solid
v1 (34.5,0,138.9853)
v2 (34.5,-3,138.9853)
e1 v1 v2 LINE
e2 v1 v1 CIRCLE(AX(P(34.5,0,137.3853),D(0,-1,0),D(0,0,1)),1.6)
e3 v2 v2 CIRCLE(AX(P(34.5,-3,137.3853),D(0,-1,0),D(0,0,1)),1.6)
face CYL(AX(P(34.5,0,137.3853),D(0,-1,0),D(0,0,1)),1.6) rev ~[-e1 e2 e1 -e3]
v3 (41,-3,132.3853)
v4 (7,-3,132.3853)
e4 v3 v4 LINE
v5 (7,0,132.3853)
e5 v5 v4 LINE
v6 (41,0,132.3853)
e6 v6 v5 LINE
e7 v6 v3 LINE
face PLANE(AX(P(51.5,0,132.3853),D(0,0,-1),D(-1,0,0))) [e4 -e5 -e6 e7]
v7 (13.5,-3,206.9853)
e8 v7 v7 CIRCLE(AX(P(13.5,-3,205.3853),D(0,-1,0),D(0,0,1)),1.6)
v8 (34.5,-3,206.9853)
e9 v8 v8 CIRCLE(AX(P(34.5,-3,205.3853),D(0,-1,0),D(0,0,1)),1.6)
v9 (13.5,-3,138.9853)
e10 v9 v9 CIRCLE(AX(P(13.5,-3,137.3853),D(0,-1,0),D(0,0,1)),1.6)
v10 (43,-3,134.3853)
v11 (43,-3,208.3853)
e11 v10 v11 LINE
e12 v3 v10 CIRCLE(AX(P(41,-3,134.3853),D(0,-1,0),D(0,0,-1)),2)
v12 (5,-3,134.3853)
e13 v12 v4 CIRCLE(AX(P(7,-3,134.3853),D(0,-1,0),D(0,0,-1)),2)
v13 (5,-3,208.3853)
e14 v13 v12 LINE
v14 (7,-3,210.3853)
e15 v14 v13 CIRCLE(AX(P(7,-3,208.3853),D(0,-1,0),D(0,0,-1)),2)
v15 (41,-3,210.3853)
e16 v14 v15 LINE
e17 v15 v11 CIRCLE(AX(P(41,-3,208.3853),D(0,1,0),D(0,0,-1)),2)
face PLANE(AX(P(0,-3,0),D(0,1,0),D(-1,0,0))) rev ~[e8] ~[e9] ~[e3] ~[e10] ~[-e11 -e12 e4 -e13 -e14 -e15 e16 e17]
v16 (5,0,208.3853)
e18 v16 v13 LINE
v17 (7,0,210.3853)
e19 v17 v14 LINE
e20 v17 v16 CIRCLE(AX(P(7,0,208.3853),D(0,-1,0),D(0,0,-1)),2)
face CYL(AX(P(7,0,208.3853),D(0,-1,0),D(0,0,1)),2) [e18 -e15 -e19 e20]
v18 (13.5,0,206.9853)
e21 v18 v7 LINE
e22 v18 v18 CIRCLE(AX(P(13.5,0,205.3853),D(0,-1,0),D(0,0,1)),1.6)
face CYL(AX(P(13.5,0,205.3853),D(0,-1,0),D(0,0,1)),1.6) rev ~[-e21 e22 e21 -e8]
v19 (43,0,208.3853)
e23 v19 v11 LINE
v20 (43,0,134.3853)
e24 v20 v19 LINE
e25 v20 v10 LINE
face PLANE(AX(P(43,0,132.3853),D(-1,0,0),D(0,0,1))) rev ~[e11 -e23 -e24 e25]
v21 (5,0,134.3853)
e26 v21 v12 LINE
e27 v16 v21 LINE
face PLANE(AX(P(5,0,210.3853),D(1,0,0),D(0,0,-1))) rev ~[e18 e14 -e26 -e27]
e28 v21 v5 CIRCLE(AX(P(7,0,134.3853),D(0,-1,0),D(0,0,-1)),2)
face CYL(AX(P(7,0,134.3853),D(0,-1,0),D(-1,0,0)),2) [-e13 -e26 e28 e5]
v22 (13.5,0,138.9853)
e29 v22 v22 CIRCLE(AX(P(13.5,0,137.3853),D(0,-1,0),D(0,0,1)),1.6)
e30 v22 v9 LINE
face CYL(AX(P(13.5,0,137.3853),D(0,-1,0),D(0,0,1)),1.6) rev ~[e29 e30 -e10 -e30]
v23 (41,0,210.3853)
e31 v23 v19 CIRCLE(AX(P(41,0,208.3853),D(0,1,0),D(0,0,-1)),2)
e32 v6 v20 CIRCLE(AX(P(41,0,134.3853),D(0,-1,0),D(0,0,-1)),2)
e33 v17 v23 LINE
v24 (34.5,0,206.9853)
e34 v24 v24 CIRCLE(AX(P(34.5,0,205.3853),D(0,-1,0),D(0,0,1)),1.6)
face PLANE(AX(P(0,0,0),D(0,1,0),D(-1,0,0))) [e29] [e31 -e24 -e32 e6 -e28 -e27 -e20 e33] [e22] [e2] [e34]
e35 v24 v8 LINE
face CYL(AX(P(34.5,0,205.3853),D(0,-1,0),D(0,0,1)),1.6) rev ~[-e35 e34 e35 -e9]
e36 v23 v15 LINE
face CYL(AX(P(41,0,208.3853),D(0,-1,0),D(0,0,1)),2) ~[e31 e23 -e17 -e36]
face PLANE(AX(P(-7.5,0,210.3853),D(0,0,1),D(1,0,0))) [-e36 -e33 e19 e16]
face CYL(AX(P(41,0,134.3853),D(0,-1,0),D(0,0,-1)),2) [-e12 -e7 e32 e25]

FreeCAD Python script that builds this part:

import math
import FreeCAD as App
import Part
import Sketcher
from FreeCAD import Vector
Q = App.Units.Quantity


def edges_at(feature, points):
    """Names of the edges that pass closest to the given points."""
    edges = feature.Shape.Edges
    near = lambda p: min(range(len(edges)), key=lambda i: edges[i].distToShape(Part.Vertex(*p))[0])
    return sorted({f"Edge{near(p) + 1}" for p in points})


def add_polygon(sketch, points):
    """Adds a closed chain of lines whose ends are joined by coincident constraints."""
    first, n = sketch.GeometryCount, len(points)
    for a, b in zip(points, points[1:] + points[:1]):
        sketch.addGeometry(Part.LineSegment(App.Vector(*a, 0), App.Vector(*b, 0)), False)
    for i in range(n):
        sketch.addConstraint(Sketcher.Constraint("Coincident", first + i, 2, first + (i + 1) % n, 1))

doc = App.newDocument("Part")
params = doc.addObject("Spreadsheet::Sheet", "Params")
for row, (alias, value) in enumerate([
    ("sketch1_width", "59 mm"),
    ("sketch1_height", "78 mm"),
    ("pad1_length", "3 mm"),
    ("sketch2_diameter", "3.2 mm"),
    ("hole_diameter", "3.2 mm"),
    ("fillet_radius", "2 mm"),
    ("sketch3_width", "10.5 mm"),
    ("sketch3_radius", "2 mm"),
    ("sketch3_diameter", "3.2 mm"),
    ("sketch3_height", "78 mm"),
    ("sketch3_width2", "6.5 mm"),
    ("fillet2_radius", "2 mm"),
], start=1):
    params.set(f"A{row}", alias)
    params.set(f"B{row}", "=" + value)
    params.setAlias(f"B{row}", alias)

body = doc.addObject("PartDesign::Body", "Body")

sketch1 = body.newObject("Sketcher::SketchObject", "Sketch")
sketch1.AttachmentSupport = (doc.getObject("XZ_Plane"), [""])
sketch1.MapMode = "FlatFace"
add_polygon(sketch1, [(52, 210), (52, 132), (-8, 132), (-8, 210)])
sketch1.addConstraint(Sketcher.Constraint("Vertical", 0))
sketch1.addConstraint(Sketcher.Constraint("Horizontal", 1))
sketch1.addConstraint(Sketcher.Constraint("Vertical", 2))
sketch1.addConstraint(Sketcher.Constraint("Horizontal", 3))
sketch1.addConstraint(Sketcher.Constraint("DistanceX", 1, 2, 1, 1, Q("59 mm")))
sketch1.addConstraint(Sketcher.Constraint("DistanceY", 0, 2, 0, 1, Q("78 mm")))
sketch1.addConstraint(Sketcher.Constraint("DistanceX", -1, 1, 0, 2, Q("51.5 mm")))
sketch1.addConstraint(Sketcher.Constraint("DistanceY", -1, 1, 0, 2, Q("132.3853 mm")))
sketch1.setExpression("Constraints[8]", "Params.sketch1_width")
sketch1.setExpression("Constraints[9]", "Params.sketch1_height")
pad1 = body.newObject("PartDesign::Pad", "Pad")
pad1.Profile = sketch1
pad1.setExpression("Length", "Params.pad1_length")

sketch2 = body.newObject("Sketcher::SketchObject", "Sketch001")
sketch2.AttachmentSupport = (doc.getObject("XZ_Plane"), [""])
sketch2.MapMode = "FlatFace"
sketch2.addGeometry(Part.Circle(Vector(34.5, 137.4, 0), Vector(0, 0, 1), 1.6), False)
sketch2.addGeometry(Part.Circle(Vector(13.5, 137.4, 0), Vector(0, 0, 1), 1.6), False)
sketch2.addGeometry(Part.Circle(Vector(46.5, 159.4, 0), Vector(0, 0, 1), 1.6), False)
sketch2.addGeometry(Part.Circle(Vector(46.5, 183.4, 0), Vector(0, 0, 1), 1.6), False)
sketch2.addGeometry(Part.Circle(Vector(34.5, 205.4, 0), Vector(0, 0, 1), 1.6), False)
sketch2.addGeometry(Part.Circle(Vector(-2.5, 159.4, 0), Vector(0, 0, 1), 1.6), False)
sketch2.addGeometry(Part.Circle(Vector(-2.5, 183.4, 0), Vector(0, 0, 1), 1.6), False)
sketch2.addGeometry(Part.Circle(Vector(13.5, 205.4, 0), Vector(0, 0, 1), 1.6), False)
sketch2.addConstraint(Sketcher.Constraint("Equal", 0, 1))
sketch2.addConstraint(Sketcher.Constraint("Equal", 1, 2))
sketch2.addConstraint(Sketcher.Constraint("Equal", 2, 3))
sketch2.addConstraint(Sketcher.Constraint("Equal", 3, 4))
sketch2.addConstraint(Sketcher.Constraint("Equal", 4, 5))
sketch2.addConstraint(Sketcher.Constraint("Equal", 5, 6))
sketch2.addConstraint(Sketcher.Constraint("Equal", 6, 7))
sketch2.addConstraint(Sketcher.Constraint("Horizontal", 0, 3, 1, 3))
sketch2.addConstraint(Sketcher.Constraint("Horizontal", 2, 3, 5, 3))
sketch2.addConstraint(Sketcher.Constraint("Horizontal", 3, 3, 6, 3))
sketch2.addConstraint(Sketcher.Constraint("Horizontal", 4, 3, 7, 3))
sketch2.addConstraint(Sketcher.Constraint("Vertical", 2, 3, 3, 3))
sketch2.addConstraint(Sketcher.Constraint("Vertical", 0, 3, 4, 3))
sketch2.addConstraint(Sketcher.Constraint("Vertical", 5, 3, 6, 3))
sketch2.addConstraint(Sketcher.Constraint("Vertical", 1, 3, 7, 3))
sketch2.addConstraint(Sketcher.Constraint("Diameter", 0, Q("3.2 mm")))
sketch2.addConstraint(Sketcher.Constraint("DistanceX", 1, 3, 0, 3, Q("21 mm")))
sketch2.addConstraint(Sketcher.Constraint("DistanceX", 0, 3, 2, 3, Q("12 mm")))
sketch2.addConstraint(Sketcher.Constraint("DistanceY", 0, 3, 2, 3, Q("22 mm")))
sketch2.addConstraint(Sketcher.Constraint("DistanceY", 2, 3, 3, 3, Q("24 mm")))
sketch2.addConstraint(Sketcher.Constraint("DistanceY", 3, 3, 4, 3, Q("22 mm")))
sketch2.addConstraint(Sketcher.Constraint("DistanceX", 5, 3, 1, 3, Q("16 mm")))
sketch2.addConstraint(Sketcher.Constraint("DistanceX", -1, 1, 0, 3, Q("34.5 mm")))
sketch2.addConstraint(Sketcher.Constraint("DistanceY", -1, 1, 0, 3, Q("137.3853 mm")))
sketch2.setExpression("Constraints[15]", "Params.sketch2_diameter")
doc.recompute()
hole = body.newObject("PartDesign::Hole", "Hole")
hole.Profile = sketch2
hole.ThreadType = "None"
hole.setExpression("Diameter", "Params.hole_diameter")
hole.DepthType = "ThroughAll"
hole.Reversed = True
doc.recompute()

fillet = body.newObject("PartDesign::Fillet", "Fillet")
fillet.Base = (hole, edges_at(hole, [
    (-7.5, -1.5, 210.385),
    (51.5, -1.5, 210.385),
    (51.5, -1.5, 132.385),
    (-7.5, -1.5, 132.385),
]))
fillet.setExpression("Radius", "Params.fillet_radius")

sketch3 = body.newObject("Sketcher::SketchObject", "Sketch002")
sketch3.AttachmentSupport = (doc.getObject("XZ_Plane"), [""])
sketch3.MapMode = "FlatFace"
sketch3.addGeometry(Part.ArcOfCircle(Part.Circle(Vector(49.5, 134.4, 0), Vector(0, 0, 1), 2), math.radians(-90), math.radians(0)), False)
sketch3.addGeometry(Part.LineSegment(Vector(49.5, 132.4, 0), Vector(43, 132.4, 0)), False)
sketch3.addGeometry(Part.LineSegment(Vector(43, 132.4, 0), Vector(43, 210.4, 0)), False)
sketch3.addGeometry(Part.LineSegment(Vector(43, 210.4, 0), Vector(49.5, 210.4, 0)), False)
sketch3.addGeometry(Part.ArcOfCircle(Part.Circle(Vector(49.5, 208.4, 0), Vector(0, 0, 1), 2), math.radians(0), math.radians(90)), False)
sketch3.addGeometry(Part.LineSegment(Vector(51.5, 208.4, 0), Vector(51.5, 134.4, 0)), False)
sketch3.addGeometry(Part.Circle(Vector(46.5, 183.4, 0), Vector(0, 0, 1), 1.6), False)
sketch3.addGeometry(Part.Circle(Vector(46.5, 159.4, 0), Vector(0, 0, 1), 1.6), False)
sketch3.addGeometry(Part.LineSegment(Vector(5, 210.4, 0), Vector(5, 132.4, 0)), False)
sketch3.addGeometry(Part.LineSegment(Vector(5, 132.4, 0), Vector(-5.5, 132.4, 0)), False)
sketch3.addGeometry(Part.ArcOfCircle(Part.Circle(Vector(-5.5, 134.4, 0), Vector(0, 0, 1), 2), math.radians(180), math.radians(270)), False)
sketch3.addGeometry(Part.LineSegment(Vector(-7.5, 134.4, 0), Vector(-7.5, 208.4, 0)), False)
sketch3.addGeometry(Part.ArcOfCircle(Part.Circle(Vector(-5.5, 208.4, 0), Vector(0, 0, 1), 2), math.radians(90), math.radians(180)), False)
sketch3.addGeometry(Part.LineSegment(Vector(-5.5, 210.4, 0), Vector(5, 210.4, 0)), False)
sketch3.addGeometry(Part.Circle(Vector(-2.5, 183.4, 0), Vector(0, 0, 1), 1.6), False)
sketch3.addGeometry(Part.Circle(Vector(-2.5, 159.4, 0), Vector(0, 0, 1), 1.6), False)
sketch3.addConstraint(Sketcher.Constraint("Tangent", 0, 1, 1, 1))
sketch3.addConstraint(Sketcher.Constraint("Coincident", 1, 2, 2, 1))
sketch3.addConstraint(Sketcher.Constraint("Coincident", 2, 2, 3, 1))
sketch3.addConstraint(Sketcher.Constraint("Tangent", 3, 2, 4, 2))
sketch3.addConstraint(Sketcher.Constraint("Tangent", 4, 1, 5, 1))
sketch3.addConstraint(Sketcher.Constraint("Tangent", 5, 2, 0, 2))
sketch3.addConstraint(Sketcher.Constraint("Coincident", 8, 2, 9, 1))
sketch3.addConstraint(Sketcher.Constraint("Tangent", 9, 2, 10, 2))
sketch3.addConstraint(Sketcher.Constraint("Tangent", 10, 1, 11, 1))
sketch3.addConstraint(Sketcher.Constraint("Tangent", 11, 2, 12, 2))
sketch3.addConstraint(Sketcher.Constraint("Tangent", 12, 1, 13, 1))
sketch3.addConstraint(Sketcher.Constraint("Coincident", 13, 2, 8, 1))
sketch3.addConstraint(Sketcher.Constraint("Horizontal", 1))
sketch3.addConstraint(Sketcher.Constraint("Vertical", 2))
sketch3.addConstraint(Sketcher.Constraint("Horizontal", 3))
sketch3.addConstraint(Sketcher.Constraint("Vertical", 5))
sketch3.addConstraint(Sketcher.Constraint("Vertical", 8))
sketch3.addConstraint(Sketcher.Constraint("Horizontal", 9))
sketch3.addConstraint(Sketcher.Constraint("Vertical", 11))
sketch3.addConstraint(Sketcher.Constraint("Horizontal", 13))
sketch3.addConstraint(Sketcher.Constraint("Equal", 0, 4))
sketch3.addConstraint(Sketcher.Constraint("Equal", 6, 7))
sketch3.addConstraint(Sketcher.Constraint("Equal", 4, 10))
sketch3.addConstraint(Sketcher.Constraint("Equal", 10, 12))
sketch3.addConstraint(Sketcher.Constraint("Equal", 7, 14))
sketch3.addConstraint(Sketcher.Constraint("Equal", 14, 15))
sketch3.addConstraint(Sketcher.Constraint("Horizontal", 0, 3, 10, 3))
sketch3.addConstraint(Sketcher.Constraint("Horizontal", 4, 3, 12, 3))
sketch3.addConstraint(Sketcher.Constraint("Horizontal", 6, 3, 14, 3))
sketch3.addConstraint(Sketcher.Constraint("Horizontal", 7, 3, 15, 3))
sketch3.addConstraint(Sketcher.Constraint("Vertical", 6, 3, 7, 3))
sketch3.addConstraint(Sketcher.Constraint("Vertical", 14, 3, 15, 3))
sketch3.addConstraint(Sketcher.Constraint("DistanceX", 9, 2, 9, 1, Q("10.5 mm")))
sketch3.addConstraint(Sketcher.Constraint("Radius", 0, Q("2 mm")))
sketch3.addConstraint(Sketcher.Constraint("DistanceX", 8, 2, 1, 2, Q("38 mm")))
sketch3.addConstraint(Sketcher.Constraint("Diameter", 6, Q("3.2 mm")))
sketch3.addConstraint(Sketcher.Constraint("DistanceY", 2, 1, 2, 2, Q("78 mm")))
sketch3.addConstraint(Sketcher.Constraint("DistanceX", 1, 2, 1, 1, Q("6.5 mm")))
sketch3.addConstraint(Sketcher.Constraint("DistanceX", -1, 1, 1, 2, Q("43 mm")))
sketch3.addConstraint(Sketcher.Constraint("DistanceX", 6, 3, 4, 3, Q("3 mm")))
sketch3.addConstraint(Sketcher.Constraint("DistanceY", 6, 3, 4, 3, Q("25 mm")))
sketch3.addConstraint(Sketcher.Constraint("DistanceY", 7, 3, 6, 3, Q("24 mm")))
sketch3.addConstraint(Sketcher.Constraint("DistanceX", 12, 3, 14, 3, Q("3 mm")))
sketch3.addConstraint(Sketcher.Constraint("DistanceY", -1, 1, 0, 3, Q("134.3853 mm")))
sketch3.setExpression("Constraints[32]", "Params.sketch3_width")
sketch3.setExpression("Constraints[33]", "Params.sketch3_radius")
sketch3.setExpression("Constraints[35]", "Params.sketch3_diameter")
sketch3.setExpression("Constraints[36]", "Params.sketch3_height")
sketch3.setExpression("Constraints[37]", "Params.sketch3_width2")
pocket1 = body.newObject("PartDesign::Pocket", "Pocket")
pocket1.Profile = sketch3
pocket1.Type = "ThroughAll"
pocket1.Reversed = True
doc.recompute()

fillet2 = body.newObject("PartDesign::Fillet", "Fillet001")
fillet2.Base = (pocket1, edges_at(pocket1, [
    (5, -1.5, 210.385),
    (43, -1.5, 210.385),
    (43, -1.5, 132.385),
    (5, -1.5, 132.385),
]))
fillet2.setExpression("Radius", "Params.fillet2_radius")

doc.recompute()
